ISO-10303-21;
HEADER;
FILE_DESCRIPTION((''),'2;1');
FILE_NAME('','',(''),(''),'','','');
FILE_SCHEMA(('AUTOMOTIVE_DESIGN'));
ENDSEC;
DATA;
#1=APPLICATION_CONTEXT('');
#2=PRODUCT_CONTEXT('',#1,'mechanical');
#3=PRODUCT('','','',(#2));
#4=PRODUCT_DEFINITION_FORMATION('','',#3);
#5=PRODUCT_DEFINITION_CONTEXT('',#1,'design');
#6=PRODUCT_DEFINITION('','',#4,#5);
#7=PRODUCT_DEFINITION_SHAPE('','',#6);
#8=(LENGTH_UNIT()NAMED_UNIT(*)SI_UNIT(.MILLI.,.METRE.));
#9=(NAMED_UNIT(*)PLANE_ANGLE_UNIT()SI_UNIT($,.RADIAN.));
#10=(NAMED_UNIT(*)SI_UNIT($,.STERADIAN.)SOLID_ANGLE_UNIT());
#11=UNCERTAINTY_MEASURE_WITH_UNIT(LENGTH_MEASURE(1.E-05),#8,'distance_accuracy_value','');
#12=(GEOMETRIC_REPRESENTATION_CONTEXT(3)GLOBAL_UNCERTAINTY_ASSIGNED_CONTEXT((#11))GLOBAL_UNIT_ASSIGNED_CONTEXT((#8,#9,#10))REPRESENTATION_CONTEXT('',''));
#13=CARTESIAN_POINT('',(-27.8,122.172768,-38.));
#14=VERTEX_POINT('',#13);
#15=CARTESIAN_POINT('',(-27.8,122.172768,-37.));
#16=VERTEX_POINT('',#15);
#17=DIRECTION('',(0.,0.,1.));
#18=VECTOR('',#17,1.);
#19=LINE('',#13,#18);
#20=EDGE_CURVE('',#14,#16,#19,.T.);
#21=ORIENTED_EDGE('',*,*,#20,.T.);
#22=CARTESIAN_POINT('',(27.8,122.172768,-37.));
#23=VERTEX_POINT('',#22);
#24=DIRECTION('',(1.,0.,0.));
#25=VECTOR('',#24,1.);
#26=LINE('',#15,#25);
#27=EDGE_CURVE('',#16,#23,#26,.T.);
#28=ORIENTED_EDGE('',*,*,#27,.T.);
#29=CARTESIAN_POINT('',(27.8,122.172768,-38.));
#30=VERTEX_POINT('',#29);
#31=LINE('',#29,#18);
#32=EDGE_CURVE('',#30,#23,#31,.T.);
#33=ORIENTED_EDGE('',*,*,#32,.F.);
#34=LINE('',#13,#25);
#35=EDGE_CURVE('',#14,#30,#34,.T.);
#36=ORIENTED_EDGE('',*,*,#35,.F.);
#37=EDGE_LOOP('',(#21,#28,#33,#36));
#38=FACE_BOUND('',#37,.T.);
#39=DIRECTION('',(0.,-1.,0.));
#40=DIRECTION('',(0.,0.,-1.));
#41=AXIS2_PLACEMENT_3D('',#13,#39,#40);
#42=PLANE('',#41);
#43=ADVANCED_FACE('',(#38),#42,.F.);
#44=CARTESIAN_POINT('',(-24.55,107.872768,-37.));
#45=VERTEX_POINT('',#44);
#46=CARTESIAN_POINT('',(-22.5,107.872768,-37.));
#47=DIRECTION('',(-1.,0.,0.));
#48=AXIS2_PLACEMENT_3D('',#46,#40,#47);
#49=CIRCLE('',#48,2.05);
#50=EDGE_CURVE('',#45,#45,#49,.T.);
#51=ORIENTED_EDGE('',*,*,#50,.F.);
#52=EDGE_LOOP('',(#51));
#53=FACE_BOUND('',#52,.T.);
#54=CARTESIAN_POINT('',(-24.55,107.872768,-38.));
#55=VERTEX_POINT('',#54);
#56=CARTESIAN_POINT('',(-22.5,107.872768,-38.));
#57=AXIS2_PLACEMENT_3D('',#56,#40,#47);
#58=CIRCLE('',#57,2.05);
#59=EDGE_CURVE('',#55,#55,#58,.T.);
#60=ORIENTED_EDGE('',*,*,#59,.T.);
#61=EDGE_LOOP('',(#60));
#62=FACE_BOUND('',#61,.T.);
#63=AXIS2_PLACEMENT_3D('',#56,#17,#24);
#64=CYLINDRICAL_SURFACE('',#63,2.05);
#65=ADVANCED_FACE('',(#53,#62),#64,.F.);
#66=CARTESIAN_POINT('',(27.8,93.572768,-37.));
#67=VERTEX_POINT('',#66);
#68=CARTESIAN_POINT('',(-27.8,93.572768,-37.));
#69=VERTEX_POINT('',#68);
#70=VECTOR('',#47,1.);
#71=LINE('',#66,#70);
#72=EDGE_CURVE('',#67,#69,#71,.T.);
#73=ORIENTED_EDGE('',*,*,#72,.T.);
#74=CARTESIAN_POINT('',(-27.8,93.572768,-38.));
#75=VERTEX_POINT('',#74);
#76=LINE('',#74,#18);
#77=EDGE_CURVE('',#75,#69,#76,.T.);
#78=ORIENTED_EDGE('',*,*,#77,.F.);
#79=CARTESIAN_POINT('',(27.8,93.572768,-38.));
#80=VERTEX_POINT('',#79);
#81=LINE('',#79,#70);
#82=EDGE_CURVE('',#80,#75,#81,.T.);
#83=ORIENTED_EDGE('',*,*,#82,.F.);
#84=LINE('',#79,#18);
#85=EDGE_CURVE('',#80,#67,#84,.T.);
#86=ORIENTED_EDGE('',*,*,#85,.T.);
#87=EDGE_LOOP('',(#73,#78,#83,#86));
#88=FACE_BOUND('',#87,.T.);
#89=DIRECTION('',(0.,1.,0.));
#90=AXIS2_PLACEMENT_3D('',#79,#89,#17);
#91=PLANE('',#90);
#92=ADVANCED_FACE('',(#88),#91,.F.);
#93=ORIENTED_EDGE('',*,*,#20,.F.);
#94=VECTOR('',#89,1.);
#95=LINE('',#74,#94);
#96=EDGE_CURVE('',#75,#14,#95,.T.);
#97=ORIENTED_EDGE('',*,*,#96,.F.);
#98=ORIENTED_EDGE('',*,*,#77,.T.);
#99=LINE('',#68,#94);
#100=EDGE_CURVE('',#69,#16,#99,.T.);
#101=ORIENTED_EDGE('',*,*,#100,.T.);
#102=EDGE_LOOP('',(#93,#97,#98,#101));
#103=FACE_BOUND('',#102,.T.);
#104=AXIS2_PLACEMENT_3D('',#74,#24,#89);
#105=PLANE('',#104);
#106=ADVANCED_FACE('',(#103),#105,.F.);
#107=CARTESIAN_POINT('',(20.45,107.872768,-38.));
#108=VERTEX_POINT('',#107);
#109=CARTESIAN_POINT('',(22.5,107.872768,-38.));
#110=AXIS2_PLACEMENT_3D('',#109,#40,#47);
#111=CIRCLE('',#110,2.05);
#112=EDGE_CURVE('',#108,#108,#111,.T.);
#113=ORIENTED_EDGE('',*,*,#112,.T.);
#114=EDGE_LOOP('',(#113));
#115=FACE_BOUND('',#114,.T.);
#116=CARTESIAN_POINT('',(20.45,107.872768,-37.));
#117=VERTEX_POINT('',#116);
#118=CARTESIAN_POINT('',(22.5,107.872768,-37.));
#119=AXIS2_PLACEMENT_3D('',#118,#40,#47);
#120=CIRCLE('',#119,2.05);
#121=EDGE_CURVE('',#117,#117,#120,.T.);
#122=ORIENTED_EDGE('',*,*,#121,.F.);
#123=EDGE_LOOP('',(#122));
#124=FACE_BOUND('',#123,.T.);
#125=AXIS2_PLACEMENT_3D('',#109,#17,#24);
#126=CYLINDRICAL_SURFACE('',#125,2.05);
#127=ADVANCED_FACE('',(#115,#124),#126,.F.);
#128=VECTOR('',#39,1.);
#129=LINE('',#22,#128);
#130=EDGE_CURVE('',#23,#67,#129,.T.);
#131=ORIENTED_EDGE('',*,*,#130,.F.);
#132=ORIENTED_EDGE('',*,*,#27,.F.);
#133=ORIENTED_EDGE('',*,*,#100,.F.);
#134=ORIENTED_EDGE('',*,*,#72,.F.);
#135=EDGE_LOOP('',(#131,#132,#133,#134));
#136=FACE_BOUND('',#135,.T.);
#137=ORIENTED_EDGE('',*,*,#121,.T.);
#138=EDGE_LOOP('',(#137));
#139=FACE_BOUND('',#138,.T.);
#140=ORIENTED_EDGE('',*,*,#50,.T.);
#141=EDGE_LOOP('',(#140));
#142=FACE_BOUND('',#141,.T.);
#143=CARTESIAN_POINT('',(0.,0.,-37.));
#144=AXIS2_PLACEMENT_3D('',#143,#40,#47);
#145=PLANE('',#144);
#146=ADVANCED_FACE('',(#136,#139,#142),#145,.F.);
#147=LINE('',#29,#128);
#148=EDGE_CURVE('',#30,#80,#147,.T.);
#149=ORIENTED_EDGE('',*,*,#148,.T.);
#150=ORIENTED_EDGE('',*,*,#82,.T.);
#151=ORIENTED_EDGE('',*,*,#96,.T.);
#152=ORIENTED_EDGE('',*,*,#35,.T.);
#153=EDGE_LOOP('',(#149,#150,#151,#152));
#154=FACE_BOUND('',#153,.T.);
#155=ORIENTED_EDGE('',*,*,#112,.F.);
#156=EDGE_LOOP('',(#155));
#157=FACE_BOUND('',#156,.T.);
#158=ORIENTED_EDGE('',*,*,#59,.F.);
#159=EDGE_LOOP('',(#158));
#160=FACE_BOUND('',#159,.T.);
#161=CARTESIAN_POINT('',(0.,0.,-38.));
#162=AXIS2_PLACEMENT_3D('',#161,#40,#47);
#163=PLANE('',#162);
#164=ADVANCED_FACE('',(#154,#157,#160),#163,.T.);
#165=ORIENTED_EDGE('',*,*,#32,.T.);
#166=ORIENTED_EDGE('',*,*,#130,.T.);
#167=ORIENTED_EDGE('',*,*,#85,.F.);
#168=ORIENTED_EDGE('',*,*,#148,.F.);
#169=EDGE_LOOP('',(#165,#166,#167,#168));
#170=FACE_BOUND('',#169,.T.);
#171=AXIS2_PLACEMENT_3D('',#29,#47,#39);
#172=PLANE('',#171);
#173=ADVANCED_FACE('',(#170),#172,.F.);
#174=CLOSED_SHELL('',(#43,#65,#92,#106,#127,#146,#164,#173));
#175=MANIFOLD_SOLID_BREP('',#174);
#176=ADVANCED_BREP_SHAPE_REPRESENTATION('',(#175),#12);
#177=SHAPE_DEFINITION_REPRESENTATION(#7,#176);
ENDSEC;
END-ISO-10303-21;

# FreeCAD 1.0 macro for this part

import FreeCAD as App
import Part
import Sketcher
Q = App.Units.Quantity

doc = App.newDocument("Part")
body = doc.addObject("PartDesign::Body", "Body")

# Sketch on XY plane
sketch1 = body.newObject("Sketcher::SketchObject", "Sketch")
sketch1.AttachmentSupport = (doc.getObject("XY_Plane"), [""])
sketch1.MapMode = "FlatFace"
sketch1.AttachmentOffset = App.Placement(App.Vector(0, 0, -37), App.Rotation())
sketch1.addGeometry([
    Part.LineSegment(App.Vector(27.8, 122.2, 0), App.Vector(27.8, 93.6, 0)),  # 0
    Part.LineSegment(App.Vector(27.8, 93.6, 0), App.Vector(-27.8, 93.6, 0)),  # 1
    Part.LineSegment(App.Vector(-27.8, 93.6, 0), App.Vector(-27.8, 122.2, 0)),  # 2
    Part.LineSegment(App.Vector(-27.8, 122.2, 0), App.Vector(27.8, 122.2, 0)),  # 3
    Part.Circle(App.Vector(22.5, 107.9, 0), App.Vector(0, 0, 1), 2),  # 4
    Part.Circle(App.Vector(-22.5, 107.9, 0), App.Vector(0, 0, 1), 2),  # 5
], False)
sketch1.addConstraint([
    Sketcher.Constraint("Coincident", 0, 2, 1, 1),
    Sketcher.Constraint("Coincident", 1, 2, 2, 1),
    Sketcher.Constraint("Coincident", 2, 2, 3, 1),
    Sketcher.Constraint("Coincident", 3, 2, 0, 1),
    Sketcher.Constraint("Vertical", 0),
    Sketcher.Constraint("Horizontal", 1),
    Sketcher.Constraint("Vertical", 2),
    Sketcher.Constraint("Horizontal", 3),
    Sketcher.Constraint("Equal", 4, 5),
    Sketcher.Constraint("Symmetric", 4, 3, 5, 3, -2),
    Sketcher.Constraint("Diameter", 4, Q("4.1 mm")),
    Sketcher.Constraint("DistanceX", 1, 2, 1, 1, Q("55.6 mm")),
    Sketcher.Constraint("DistanceY", 0, 2, 0, 1, Q("28.6 mm")),
    Sketcher.Constraint("DistanceX", 5, 3, 4, 3, Q("45 mm")),
    Sketcher.Constraint("DistanceX", -1, 1, 0, 2, Q("27.8 mm")),
    Sketcher.Constraint("DistanceY", 0, 2, 4, 3, Q("14.3 mm")),
    Sketcher.Constraint("DistanceY", -1, 1, 4, 3, Q("107.872768 mm")),
])
pad1 = body.newObject("PartDesign::Pad", "Pad")
pad1.Profile = sketch1
pad1.Length = 1
pad1.Reversed = True

doc.recompute()
